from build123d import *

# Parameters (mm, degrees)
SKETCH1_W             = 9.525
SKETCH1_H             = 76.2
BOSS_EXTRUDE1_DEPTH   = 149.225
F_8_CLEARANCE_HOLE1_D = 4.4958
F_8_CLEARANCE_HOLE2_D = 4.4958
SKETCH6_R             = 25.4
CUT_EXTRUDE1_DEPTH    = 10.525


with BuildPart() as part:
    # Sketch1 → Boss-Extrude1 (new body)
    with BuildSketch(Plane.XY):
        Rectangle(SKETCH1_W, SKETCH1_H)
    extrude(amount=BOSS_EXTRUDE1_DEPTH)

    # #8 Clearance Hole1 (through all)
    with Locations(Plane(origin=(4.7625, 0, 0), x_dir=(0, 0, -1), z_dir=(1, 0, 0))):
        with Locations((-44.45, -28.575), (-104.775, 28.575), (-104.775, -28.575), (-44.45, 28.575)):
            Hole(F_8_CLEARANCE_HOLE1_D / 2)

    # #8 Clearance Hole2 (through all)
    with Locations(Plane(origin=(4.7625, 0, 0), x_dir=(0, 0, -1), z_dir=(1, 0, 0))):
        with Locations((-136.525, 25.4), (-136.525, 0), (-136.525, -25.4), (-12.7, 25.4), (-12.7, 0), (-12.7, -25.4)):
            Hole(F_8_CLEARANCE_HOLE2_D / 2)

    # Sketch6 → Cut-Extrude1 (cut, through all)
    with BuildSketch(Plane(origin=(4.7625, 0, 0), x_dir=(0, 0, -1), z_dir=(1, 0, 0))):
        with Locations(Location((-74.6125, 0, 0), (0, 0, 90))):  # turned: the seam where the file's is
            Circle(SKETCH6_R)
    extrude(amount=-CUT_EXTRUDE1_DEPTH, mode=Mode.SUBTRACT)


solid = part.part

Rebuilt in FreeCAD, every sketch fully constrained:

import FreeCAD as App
import Part
import Sketcher
Q = App.Units.Quantity


def add_polygon(sketch, points):
    """Adds a closed chain of lines whose ends are joined by coincident constraints."""
    first, n = sketch.GeometryCount, len(points)
    for a, b in zip(points, points[1:] + points[:1]):
        sketch.addGeometry(Part.LineSegment(App.Vector(*a, 0), App.Vector(*b, 0)), False)
    for i in range(n):
        sketch.addConstraint(Sketcher.Constraint("Coincident", first + i, 2, first + (i + 1) % n, 1))

doc = App.newDocument("Part")
params = doc.addObject("Spreadsheet::Sheet", "Params")
for row, (alias, value) in enumerate([
    ("sketch1_height", "3 in"),
    ("sketch1_width", "0.375 in"),
    ("pad1_length", "5.875 in"),
    ("sketch2_diameter", "0.177 in"),
    ("hole_diameter", "0.177 in"),
    ("sketch3_diameter", "0.177 in"),
    ("hole2_diameter", "0.177 in"),
    ("sketch4_diameter", "2 in"),
], start=1):
    params.set(f"A{row}", alias)
    params.set(f"B{row}", "=" + value)
    params.setAlias(f"B{row}", alias)

body = doc.addObject("PartDesign::Body", "Body")

sketch1 = body.newObject("Sketcher::SketchObject", "Sketch")
sketch1.AttachmentSupport = (doc.getObject("XY_Plane"), [""])
sketch1.MapMode = "FlatFace"
add_polygon(sketch1, [(-5, 38), (-5, -38), (5, -38), (5, 38)])
sketch1.addConstraint(Sketcher.Constraint("Vertical", 0))
sketch1.addConstraint(Sketcher.Constraint("Horizontal", 1))
sketch1.addConstraint(Sketcher.Constraint("Vertical", 2))
sketch1.addConstraint(Sketcher.Constraint("Horizontal", 3))
sketch1.addConstraint(Sketcher.Constraint("Symmetric", 0, 2, 2, 2, -1, 1))
sketch1.addConstraint(Sketcher.Constraint("DistanceY", 0, 2, 0, 1, Q("3 in")))
sketch1.addConstraint(Sketcher.Constraint("DistanceX", 1, 1, 1, 2, Q("0.375 in")))
sketch1.setExpression("Constraints[9]", "Params.sketch1_height")
sketch1.setExpression("Constraints[10]", "Params.sketch1_width")
pad1 = body.newObject("PartDesign::Pad", "Pad")
pad1.Profile = sketch1
pad1.setExpression("Length", "Params.pad1_length")

sketch2 = body.newObject("Sketcher::SketchObject", "Sketch001")
sketch2.AttachmentSupport = (doc.getObject("YZ_Plane"), [""])
sketch2.MapMode = "FlatFace"
sketch2.AttachmentOffset = App.Placement(App.Vector(0, 0, 0.1875 * 25.4), App.Rotation())
sketch2.addGeometry(Part.Circle(App.Vector(-28.6, 44.5, 0), App.Vector(0, 0, 1), 2.2), False)
sketch2.addGeometry(Part.Circle(App.Vector(28.6, 104.8, 0), App.Vector(0, 0, 1), 2.2), False)
sketch2.addGeometry(Part.Circle(App.Vector(-28.6, 104.8, 0), App.Vector(0, 0, 1), 2.2), False)
sketch2.addGeometry(Part.Circle(App.Vector(28.6, 44.5, 0), App.Vector(0, 0, 1), 2.2), False)
sketch2.addConstraint(Sketcher.Constraint("Equal", 0, 1))
sketch2.addConstraint(Sketcher.Constraint("Equal", 1, 2))
sketch2.addConstraint(Sketcher.Constraint("Equal", 2, 3))
sketch2.addConstraint(Sketcher.Constraint("Symmetric", 1, 3, 2, 3, -2))
sketch2.addConstraint(Sketcher.Constraint("Symmetric", 0, 3, 3, 3, -2))
sketch2.addConstraint(Sketcher.Constraint("Vertical", 0, 3, 2, 3))
sketch2.addConstraint(Sketcher.Constraint("Diameter", 0, Q("0.177 in")))
sketch2.addConstraint(Sketcher.Constraint("DistanceY", -1, 1, 0, 3, Q("1.75 in")))
sketch2.addConstraint(Sketcher.Constraint("DistanceX", 0, 3, 1, 3, Q("2.25 in")))
sketch2.addConstraint(Sketcher.Constraint("DistanceY", -1, 1, 1, 3, Q("4.125 in")))
sketch2.setExpression("Constraints[6]", "Params.sketch2_diameter")
doc.recompute()
hole = body.newObject("PartDesign::Hole", "Hole")
hole.Profile = sketch2
hole.ThreadType = "None"
hole.setExpression("Diameter", "Params.hole_diameter")
hole.DepthType = "ThroughAll"

sketch3 = body.newObject("Sketcher::SketchObject", "Sketch002")
sketch3.AttachmentSupport = (doc.getObject("YZ_Plane"), [""])
sketch3.MapMode = "FlatFace"
sketch3.AttachmentOffset = App.Placement(App.Vector(0, 0, 0.1875 * 25.4), App.Rotation())
sketch3.addGeometry(Part.Circle(App.Vector(25.4, 136.5, 0), App.Vector(0, 0, 1), 2.2), False)
sketch3.addGeometry(Part.Circle(App.Vector(0, 136.5, 0), App.Vector(0, 0, 1), 2.2), False)
sketch3.addGeometry(Part.Circle(App.Vector(-25.4, 136.5, 0), App.Vector(0, 0, 1), 2.2), False)
sketch3.addGeometry(Part.Circle(App.Vector(25.4, 12.7, 0), App.Vector(0, 0, 1), 2.2), False)
sketch3.addGeometry(Part.Circle(App.Vector(0, 12.7, 0), App.Vector(0, 0, 1), 2.2), False)
sketch3.addGeometry(Part.Circle(App.Vector(-25.4, 12.7, 0), App.Vector(0, 0, 1), 2.2), False)
sketch3.addConstraint(Sketcher.Constraint("Equal", 0, 1))
sketch3.addConstraint(Sketcher.Constraint("Equal", 1, 2))
sketch3.addConstraint(Sketcher.Constraint("Equal", 2, 3))
sketch3.addConstraint(Sketcher.Constraint("Equal", 3, 4))
sketch3.addConstraint(Sketcher.Constraint("Equal", 4, 5))
sketch3.addConstraint(Sketcher.Constraint("Symmetric", 0, 3, 2, 3, -2))
sketch3.addConstraint(Sketcher.Constraint("Symmetric", 3, 3, 5, 3, -2))
sketch3.addConstraint(Sketcher.Constraint("PointOnObject", 1, 3, -2))
sketch3.addConstraint(Sketcher.Constraint("PointOnObject", 4, 3, -2))
sketch3.addConstraint(Sketcher.Constraint("Horizontal", 0, 3, 1, 3))
sketch3.addConstraint(Sketcher.Constraint("Horizontal", 3, 3, 4, 3))
sketch3.addConstraint(Sketcher.Constraint("Vertical", 0, 3, 3, 3))
sketch3.addConstraint(Sketcher.Constraint("Diameter", 0, Q("0.177 in")))
sketch3.addConstraint(Sketcher.Constraint("DistanceX", -1, 1, 0, 3, Q("1 in")))
sketch3.addConstraint(Sketcher.Constraint("DistanceY", -1, 1, 3, 3, Q("0.5 in")))
sketch3.addConstraint(Sketcher.Constraint("DistanceY", -1, 1, 0, 3, Q("5.375 in")))
sketch3.setExpression("Constraints[12]", "Params.sketch3_diameter")
doc.recompute()
hole2 = body.newObject("PartDesign::Hole", "Hole001")
hole2.Profile = sketch3
hole2.ThreadType = "None"
hole2.setExpression("Diameter", "Params.hole2_diameter")
hole2.DepthType = "ThroughAll"

sketch4 = body.newObject("Sketcher::SketchObject", "Sketch003")
sketch4.AttachmentSupport = (doc.getObject("YZ_Plane"), [""])
sketch4.MapMode = "FlatFace"
sketch4.AttachmentOffset = App.Placement(App.Vector(0, 0, 0.1875 * 25.4), App.Rotation())
sketch4.addGeometry(Part.Circle(App.Vector(0, 75, 0), App.Vector(0, 0, 1), 25), False)
sketch4.addConstraint(Sketcher.Constraint("PointOnObject", 0, 3, -2))
sketch4.addConstraint(Sketcher.Constraint("Diameter", 0, Q("2 in")))
sketch4.addConstraint(Sketcher.Constraint("DistanceY", -1, 1, 0, 3, Q("2.9375 in")))
sketch4.setExpression("Constraints[1]", "Params.sketch4_diameter")
pocket1 = body.newObject("PartDesign::Pocket", "Pocket")
pocket1.Profile = sketch4
pocket1.Type = "ThroughAll"

doc.recompute()
